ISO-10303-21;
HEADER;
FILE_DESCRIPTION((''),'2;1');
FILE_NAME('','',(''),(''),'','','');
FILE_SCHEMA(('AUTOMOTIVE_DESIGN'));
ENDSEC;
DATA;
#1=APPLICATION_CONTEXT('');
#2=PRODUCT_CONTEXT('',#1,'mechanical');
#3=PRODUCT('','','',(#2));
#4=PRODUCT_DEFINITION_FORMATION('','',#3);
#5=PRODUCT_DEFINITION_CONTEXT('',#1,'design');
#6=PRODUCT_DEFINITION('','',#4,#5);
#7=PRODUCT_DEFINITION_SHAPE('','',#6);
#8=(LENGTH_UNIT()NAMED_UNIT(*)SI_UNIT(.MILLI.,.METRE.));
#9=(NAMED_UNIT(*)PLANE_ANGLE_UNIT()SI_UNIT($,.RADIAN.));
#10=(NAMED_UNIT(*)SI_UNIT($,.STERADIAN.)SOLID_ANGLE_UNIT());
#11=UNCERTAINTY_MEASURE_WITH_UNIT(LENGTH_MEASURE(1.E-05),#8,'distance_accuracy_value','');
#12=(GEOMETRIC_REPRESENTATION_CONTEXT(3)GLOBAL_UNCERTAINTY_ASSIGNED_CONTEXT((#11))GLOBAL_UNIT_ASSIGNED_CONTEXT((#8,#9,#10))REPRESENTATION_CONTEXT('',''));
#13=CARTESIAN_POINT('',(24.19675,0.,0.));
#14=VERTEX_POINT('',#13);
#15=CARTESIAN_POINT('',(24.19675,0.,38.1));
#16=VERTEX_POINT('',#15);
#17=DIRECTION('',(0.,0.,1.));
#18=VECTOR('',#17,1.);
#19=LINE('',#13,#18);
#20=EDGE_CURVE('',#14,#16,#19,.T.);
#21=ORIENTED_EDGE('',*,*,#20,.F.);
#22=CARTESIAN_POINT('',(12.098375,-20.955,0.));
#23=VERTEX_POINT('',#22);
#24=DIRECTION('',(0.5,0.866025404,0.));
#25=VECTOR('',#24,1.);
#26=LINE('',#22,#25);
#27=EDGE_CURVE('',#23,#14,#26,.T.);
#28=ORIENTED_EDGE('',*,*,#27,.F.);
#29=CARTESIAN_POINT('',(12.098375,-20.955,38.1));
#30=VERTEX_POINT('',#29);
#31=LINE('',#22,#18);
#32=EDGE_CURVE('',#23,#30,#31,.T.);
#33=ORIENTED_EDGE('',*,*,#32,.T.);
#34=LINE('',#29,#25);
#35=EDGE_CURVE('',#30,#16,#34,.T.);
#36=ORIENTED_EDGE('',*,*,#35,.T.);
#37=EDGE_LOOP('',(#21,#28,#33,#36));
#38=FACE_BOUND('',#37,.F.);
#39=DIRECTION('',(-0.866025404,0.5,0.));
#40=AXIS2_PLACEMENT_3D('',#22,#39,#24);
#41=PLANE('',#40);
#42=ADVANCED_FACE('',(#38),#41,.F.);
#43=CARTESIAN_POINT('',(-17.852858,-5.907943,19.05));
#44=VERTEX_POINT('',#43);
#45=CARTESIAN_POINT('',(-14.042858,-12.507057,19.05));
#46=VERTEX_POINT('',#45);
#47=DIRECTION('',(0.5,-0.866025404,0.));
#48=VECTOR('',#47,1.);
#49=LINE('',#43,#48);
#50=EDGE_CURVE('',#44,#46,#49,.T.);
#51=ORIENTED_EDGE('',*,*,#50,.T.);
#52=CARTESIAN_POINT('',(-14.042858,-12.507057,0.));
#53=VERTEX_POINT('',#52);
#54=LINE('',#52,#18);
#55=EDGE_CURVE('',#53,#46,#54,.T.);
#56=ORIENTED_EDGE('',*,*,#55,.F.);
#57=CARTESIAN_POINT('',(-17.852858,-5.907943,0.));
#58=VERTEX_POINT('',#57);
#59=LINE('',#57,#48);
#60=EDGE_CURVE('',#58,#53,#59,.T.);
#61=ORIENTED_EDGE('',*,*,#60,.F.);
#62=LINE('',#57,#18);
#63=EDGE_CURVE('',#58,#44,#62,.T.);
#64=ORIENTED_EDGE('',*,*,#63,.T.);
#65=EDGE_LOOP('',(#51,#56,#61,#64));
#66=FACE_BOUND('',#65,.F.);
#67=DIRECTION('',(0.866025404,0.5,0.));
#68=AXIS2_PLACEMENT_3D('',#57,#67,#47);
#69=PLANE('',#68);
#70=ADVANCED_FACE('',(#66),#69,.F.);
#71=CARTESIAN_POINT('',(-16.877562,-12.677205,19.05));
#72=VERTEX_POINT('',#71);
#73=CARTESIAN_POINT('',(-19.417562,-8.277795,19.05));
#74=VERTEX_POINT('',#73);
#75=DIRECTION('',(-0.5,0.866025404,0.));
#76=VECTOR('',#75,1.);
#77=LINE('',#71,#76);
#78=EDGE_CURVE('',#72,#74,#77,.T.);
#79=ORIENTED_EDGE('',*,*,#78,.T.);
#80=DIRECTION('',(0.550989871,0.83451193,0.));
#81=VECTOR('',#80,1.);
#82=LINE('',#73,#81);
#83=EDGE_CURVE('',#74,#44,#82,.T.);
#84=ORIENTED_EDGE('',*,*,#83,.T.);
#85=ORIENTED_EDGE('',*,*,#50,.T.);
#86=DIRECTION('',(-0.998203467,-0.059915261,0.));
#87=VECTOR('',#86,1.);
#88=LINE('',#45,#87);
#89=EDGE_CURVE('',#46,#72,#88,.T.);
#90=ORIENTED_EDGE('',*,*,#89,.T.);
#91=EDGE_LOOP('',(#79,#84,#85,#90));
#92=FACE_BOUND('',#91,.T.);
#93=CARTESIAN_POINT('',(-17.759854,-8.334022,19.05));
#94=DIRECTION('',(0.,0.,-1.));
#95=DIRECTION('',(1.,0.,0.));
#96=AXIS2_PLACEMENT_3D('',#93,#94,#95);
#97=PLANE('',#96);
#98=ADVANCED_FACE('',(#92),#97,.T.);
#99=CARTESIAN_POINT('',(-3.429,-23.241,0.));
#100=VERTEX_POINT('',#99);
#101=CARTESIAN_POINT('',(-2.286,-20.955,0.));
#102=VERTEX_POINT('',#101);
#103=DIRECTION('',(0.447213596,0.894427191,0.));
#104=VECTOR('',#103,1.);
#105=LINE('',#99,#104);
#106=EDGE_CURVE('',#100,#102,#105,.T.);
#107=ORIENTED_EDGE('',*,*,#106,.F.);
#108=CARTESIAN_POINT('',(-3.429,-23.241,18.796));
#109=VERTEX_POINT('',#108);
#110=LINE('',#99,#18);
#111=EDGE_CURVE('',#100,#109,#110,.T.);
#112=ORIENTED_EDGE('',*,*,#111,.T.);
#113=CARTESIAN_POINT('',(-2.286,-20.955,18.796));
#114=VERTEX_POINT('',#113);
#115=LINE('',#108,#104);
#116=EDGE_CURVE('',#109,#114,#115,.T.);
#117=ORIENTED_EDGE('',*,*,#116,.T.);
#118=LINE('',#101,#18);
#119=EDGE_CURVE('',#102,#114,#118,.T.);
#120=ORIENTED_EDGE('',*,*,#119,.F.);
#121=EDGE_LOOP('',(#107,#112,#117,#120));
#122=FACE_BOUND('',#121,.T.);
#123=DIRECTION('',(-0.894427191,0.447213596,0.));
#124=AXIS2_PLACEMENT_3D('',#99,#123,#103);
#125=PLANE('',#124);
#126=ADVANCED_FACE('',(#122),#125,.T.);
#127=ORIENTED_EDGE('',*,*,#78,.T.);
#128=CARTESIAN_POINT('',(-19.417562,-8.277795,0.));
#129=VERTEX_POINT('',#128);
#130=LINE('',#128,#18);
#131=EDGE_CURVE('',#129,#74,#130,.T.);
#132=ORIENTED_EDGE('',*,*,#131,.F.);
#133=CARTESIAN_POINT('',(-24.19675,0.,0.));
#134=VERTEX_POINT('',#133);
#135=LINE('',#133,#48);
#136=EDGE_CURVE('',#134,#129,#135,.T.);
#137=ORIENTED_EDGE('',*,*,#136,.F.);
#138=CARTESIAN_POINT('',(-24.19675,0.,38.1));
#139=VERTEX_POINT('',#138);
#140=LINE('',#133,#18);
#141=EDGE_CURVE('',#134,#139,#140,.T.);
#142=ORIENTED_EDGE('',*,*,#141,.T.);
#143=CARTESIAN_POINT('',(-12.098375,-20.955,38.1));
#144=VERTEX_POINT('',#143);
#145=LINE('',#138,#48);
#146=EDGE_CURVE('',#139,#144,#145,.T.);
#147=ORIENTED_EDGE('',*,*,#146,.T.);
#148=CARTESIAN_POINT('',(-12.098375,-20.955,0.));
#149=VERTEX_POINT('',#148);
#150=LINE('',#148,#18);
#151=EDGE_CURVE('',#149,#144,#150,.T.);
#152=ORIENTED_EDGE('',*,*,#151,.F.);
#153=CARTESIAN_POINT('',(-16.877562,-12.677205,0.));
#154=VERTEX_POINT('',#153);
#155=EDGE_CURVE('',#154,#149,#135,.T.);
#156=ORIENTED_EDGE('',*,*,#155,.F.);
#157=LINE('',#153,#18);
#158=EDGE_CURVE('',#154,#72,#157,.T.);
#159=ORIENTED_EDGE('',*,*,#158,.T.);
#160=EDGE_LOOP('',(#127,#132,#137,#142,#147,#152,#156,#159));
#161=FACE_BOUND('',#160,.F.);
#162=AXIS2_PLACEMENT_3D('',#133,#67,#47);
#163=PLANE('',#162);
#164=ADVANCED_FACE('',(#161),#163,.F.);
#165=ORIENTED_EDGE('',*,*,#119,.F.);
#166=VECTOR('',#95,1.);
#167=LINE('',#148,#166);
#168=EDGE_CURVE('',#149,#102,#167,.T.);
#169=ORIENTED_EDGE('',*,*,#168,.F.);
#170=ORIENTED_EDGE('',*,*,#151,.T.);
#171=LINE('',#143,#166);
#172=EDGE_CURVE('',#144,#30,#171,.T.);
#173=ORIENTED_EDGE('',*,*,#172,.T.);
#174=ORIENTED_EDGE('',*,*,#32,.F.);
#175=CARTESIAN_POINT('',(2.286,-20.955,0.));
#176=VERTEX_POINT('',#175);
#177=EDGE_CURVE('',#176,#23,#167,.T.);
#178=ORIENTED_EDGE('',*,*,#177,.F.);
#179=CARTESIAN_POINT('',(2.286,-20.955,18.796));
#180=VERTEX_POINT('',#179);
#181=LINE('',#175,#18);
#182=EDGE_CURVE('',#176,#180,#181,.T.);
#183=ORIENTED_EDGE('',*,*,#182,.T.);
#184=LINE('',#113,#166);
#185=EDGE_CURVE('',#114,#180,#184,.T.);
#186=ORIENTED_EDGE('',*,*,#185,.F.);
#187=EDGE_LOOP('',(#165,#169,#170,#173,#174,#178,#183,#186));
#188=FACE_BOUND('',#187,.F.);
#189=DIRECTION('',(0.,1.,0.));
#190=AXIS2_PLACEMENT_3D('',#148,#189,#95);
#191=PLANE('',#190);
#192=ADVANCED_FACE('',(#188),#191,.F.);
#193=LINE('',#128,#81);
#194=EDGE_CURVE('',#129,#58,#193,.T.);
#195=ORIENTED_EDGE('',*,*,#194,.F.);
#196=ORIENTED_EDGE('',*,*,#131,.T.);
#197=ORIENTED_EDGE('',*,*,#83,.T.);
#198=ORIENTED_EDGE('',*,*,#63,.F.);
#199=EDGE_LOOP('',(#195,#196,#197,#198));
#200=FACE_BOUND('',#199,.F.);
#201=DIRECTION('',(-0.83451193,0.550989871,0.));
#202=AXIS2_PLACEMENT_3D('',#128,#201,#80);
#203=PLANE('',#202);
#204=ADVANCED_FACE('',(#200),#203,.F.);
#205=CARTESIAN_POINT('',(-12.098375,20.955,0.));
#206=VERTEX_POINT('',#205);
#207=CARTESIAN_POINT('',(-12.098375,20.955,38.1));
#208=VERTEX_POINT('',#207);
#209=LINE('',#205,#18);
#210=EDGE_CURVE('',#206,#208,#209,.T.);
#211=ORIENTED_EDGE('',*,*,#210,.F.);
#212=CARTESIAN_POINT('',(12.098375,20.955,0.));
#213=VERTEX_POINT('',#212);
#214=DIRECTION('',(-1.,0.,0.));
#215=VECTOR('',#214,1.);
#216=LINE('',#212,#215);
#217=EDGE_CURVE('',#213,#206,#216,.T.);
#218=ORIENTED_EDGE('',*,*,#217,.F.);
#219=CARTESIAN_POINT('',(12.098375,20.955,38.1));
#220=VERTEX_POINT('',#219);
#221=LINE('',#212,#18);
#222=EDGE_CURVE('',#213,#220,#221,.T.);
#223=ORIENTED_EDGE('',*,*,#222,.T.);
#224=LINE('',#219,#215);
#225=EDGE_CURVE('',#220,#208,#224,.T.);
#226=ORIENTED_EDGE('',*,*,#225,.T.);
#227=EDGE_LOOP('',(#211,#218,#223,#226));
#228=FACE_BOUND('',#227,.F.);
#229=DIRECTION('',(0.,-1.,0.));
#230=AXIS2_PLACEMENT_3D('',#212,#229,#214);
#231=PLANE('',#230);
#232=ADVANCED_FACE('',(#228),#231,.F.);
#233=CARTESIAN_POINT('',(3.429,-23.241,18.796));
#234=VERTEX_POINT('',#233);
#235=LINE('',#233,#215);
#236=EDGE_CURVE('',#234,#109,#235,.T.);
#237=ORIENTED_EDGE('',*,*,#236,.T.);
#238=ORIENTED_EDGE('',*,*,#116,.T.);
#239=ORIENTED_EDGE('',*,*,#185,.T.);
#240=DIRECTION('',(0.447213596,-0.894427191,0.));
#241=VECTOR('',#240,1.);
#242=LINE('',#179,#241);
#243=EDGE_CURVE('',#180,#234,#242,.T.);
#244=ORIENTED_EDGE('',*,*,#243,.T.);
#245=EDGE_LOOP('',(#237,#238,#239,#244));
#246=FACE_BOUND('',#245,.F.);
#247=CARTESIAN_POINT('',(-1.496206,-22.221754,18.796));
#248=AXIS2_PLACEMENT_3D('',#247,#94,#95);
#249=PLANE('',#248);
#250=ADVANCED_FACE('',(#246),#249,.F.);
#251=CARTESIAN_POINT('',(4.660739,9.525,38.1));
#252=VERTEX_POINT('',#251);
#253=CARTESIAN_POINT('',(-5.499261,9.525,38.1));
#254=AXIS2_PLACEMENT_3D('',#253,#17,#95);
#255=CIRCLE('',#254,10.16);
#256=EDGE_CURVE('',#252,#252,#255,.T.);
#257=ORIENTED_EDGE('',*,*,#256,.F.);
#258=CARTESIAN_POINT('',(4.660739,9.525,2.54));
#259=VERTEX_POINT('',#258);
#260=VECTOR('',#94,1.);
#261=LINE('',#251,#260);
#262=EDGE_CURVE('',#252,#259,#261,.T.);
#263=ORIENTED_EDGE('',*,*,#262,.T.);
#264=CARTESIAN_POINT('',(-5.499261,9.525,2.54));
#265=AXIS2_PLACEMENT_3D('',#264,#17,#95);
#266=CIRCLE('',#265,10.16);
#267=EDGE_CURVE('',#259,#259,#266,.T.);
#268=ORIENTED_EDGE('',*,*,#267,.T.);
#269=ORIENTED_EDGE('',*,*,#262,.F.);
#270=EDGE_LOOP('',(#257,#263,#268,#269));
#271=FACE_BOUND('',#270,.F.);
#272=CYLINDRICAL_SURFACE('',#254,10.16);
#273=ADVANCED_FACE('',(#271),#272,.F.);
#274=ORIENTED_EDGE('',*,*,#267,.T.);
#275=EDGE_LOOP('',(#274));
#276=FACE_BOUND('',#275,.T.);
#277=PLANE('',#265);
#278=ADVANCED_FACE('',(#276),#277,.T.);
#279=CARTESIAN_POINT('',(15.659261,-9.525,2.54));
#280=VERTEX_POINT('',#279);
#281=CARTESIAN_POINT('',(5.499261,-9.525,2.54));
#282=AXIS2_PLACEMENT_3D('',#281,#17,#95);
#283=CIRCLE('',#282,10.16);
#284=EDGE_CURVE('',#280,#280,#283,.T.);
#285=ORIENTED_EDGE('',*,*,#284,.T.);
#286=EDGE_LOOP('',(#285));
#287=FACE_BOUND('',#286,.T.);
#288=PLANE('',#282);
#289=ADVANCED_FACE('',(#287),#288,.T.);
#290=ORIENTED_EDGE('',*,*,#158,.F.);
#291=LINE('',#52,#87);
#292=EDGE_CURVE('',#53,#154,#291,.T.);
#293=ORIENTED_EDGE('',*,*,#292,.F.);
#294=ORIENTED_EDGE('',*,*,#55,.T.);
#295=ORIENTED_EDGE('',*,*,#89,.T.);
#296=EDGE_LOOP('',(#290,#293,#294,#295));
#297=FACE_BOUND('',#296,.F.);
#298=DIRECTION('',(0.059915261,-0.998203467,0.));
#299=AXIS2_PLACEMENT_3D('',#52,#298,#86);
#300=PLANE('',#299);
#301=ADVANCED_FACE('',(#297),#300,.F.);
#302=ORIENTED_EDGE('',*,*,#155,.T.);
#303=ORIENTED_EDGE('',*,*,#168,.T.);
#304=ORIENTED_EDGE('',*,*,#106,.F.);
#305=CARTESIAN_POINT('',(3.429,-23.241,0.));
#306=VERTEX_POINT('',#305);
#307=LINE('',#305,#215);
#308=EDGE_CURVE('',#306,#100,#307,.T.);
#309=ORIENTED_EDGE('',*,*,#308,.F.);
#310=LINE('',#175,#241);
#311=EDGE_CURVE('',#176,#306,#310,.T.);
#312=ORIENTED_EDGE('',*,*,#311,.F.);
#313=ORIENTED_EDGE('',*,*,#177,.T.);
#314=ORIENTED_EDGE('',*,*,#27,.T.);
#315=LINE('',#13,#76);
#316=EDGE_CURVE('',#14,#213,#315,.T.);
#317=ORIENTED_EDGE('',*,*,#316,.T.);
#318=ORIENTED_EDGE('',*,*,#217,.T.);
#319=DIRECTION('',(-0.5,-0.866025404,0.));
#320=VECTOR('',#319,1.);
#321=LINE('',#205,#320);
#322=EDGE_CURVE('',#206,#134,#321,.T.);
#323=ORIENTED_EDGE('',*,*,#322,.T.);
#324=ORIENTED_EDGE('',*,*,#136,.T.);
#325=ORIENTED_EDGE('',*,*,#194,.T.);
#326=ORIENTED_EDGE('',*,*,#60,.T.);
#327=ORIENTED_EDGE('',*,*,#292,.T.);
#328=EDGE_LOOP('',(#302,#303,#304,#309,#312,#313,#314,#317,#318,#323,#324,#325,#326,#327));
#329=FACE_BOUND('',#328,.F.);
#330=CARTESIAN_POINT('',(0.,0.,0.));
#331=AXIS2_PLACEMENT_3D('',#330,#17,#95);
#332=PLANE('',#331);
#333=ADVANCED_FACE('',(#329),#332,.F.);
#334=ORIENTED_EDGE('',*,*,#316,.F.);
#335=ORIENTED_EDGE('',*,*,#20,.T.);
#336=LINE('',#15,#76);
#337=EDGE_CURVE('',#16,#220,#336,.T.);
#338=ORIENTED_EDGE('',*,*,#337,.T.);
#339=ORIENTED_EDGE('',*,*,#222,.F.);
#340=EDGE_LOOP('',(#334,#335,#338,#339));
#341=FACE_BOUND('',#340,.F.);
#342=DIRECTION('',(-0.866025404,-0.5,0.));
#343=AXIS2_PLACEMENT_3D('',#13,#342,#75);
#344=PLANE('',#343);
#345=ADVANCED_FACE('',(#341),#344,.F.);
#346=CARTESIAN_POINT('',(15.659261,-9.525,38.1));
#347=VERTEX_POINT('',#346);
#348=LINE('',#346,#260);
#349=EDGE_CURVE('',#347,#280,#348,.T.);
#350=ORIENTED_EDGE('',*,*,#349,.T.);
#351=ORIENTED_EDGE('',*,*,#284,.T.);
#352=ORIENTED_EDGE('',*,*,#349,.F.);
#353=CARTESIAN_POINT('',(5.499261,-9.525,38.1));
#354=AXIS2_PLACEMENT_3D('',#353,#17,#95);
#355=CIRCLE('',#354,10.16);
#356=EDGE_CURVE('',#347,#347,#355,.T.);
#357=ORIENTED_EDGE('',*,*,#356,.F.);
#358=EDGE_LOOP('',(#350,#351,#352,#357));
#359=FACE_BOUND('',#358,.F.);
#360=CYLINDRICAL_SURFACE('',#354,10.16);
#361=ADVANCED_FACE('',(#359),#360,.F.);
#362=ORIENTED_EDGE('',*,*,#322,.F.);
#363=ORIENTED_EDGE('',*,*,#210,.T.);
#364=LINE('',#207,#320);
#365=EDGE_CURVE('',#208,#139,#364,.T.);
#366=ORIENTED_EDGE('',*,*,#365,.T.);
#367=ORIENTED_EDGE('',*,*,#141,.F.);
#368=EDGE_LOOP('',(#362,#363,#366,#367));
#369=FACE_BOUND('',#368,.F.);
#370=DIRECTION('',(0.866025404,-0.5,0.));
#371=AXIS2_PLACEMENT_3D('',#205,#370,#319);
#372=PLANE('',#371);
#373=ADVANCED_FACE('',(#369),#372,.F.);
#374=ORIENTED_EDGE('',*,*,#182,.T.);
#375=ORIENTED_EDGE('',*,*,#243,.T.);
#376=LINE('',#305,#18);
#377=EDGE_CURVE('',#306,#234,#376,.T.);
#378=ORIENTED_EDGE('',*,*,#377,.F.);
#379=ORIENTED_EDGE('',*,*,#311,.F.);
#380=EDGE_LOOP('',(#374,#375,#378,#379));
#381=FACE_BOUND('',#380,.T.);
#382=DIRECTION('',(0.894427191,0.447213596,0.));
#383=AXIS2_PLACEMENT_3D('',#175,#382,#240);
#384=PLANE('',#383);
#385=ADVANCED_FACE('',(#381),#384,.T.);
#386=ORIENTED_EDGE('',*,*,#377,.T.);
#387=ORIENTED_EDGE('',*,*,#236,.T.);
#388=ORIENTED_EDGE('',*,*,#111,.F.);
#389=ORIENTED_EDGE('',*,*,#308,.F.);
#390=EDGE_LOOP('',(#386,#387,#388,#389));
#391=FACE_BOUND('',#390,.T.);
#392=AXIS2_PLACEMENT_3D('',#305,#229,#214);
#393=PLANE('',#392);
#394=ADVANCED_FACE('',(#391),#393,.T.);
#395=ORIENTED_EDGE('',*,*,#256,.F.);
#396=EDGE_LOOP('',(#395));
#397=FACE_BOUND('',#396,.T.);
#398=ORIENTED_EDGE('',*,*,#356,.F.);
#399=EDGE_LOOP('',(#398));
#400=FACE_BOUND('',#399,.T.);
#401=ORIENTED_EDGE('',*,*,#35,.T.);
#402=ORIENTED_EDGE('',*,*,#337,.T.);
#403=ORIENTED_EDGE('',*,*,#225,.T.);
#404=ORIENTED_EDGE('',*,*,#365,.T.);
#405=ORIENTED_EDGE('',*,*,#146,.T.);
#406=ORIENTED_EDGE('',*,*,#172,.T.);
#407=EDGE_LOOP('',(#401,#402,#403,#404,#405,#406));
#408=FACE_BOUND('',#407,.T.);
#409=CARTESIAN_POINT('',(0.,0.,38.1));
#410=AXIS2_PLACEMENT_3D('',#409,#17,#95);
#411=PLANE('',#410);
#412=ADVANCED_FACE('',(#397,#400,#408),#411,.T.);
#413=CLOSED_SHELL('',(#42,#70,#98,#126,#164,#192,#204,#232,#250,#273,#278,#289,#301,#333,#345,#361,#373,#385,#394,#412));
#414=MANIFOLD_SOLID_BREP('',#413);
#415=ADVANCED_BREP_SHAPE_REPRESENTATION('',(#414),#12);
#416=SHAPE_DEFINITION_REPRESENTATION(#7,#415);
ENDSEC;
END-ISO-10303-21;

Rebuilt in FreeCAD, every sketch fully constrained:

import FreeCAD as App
import Part
import Sketcher

V = App.Vector
Q = App.Units.Quantity


def add_polygon(sketch, points):
    """Adds a closed chain of lines whose ends are joined by coincident constraints."""
    first, n = sketch.GeometryCount, len(points)
    for a, b in zip(points, points[1:] + points[:1]):
        sketch.addGeometry(Part.LineSegment(App.Vector(*a, 0), App.Vector(*b, 0)), False)
    for i in range(n):
        sketch.addConstraint(Sketcher.Constraint("Coincident", first + i, 2, first + (i + 1) % n, 1))

doc = App.newDocument("Part")
params = doc.addObject("Spreadsheet::Sheet", "Params")
for row, (alias, value) in enumerate([
    ("pad1_length", "1.5 in"),
    ("sketch2_diameter", "0.8 in"),
    ("pocket1_length", "1.4 in"),
    ("sketch3_length", "0.3 in"),
    ("sketch3_length2", "0.2 in"),
    ("pocket2_length", "0.75 in"),
    ("sketch4_width", "0.18 in"),
    ("sketch4_width2", "0.27 in"),
    ("pad2_length", "0.74 in"),
], start=1):
    params.set(f"A{row}", alias)
    params.set(f"B{row}", "=" + value)
    params.setAlias(f"B{row}", alias)

body = doc.addObject("PartDesign::Body", "Body")

sketch1 = doc.addObject("Sketcher::SketchObject", "Sketch")
body.addObject(sketch1)
sketch1.AttachmentSupport = (doc.XY_Plane, [""])
sketch1.MapMode = "FlatFace"
add_polygon(sketch1, [(-12.098375, -20.955), (12.098375, -20.955), (24.19675, 0), (12.098375, 20.955), (-12.098375, 20.955), (-24.19675, 0)])
sketch1.addConstraint([
    Sketcher.Constraint("Horizontal", 0),
    Sketcher.Constraint("Horizontal", 3),
    Sketcher.Constraint("Symmetric", 0, 2, 3, 2, -1, 1),
    Sketcher.Constraint("Symmetric", 1, 2, 4, 2, -1, 1),
    Sketcher.Constraint("PointOnObject", 1, 2, -1),
    Sketcher.Constraint("Parallel", 2, 5),
    Sketcher.Constraint("Vertical", 0, 2, 2, 2),
    Sketcher.Constraint("Angle", 1, Q("60 deg")),
    Sketcher.Constraint("DistanceY", 0, 2, 2, 2, Q("1.65 in")),
    Sketcher.Constraint("DistanceX", 0, 1, 0, 2, Q("24.19675 mm")),
])
pad1 = doc.addObject("PartDesign::Pad", "Pad")
body.addObject(pad1)
pad1.Profile = sketch1
pad1.setExpression("Length", "Params.pad1_length")

sketch2 = doc.addObject("Sketcher::SketchObject", "Sketch001")
body.addObject(sketch2)
sketch2.AttachmentSupport = (doc.XY_Plane, [""])
sketch2.MapMode = "FlatFace"
sketch2.AttachmentOffset = App.Placement(V(0, 0, 1.5 * 25.4), App.Rotation())
sketch2.addGeometry([
    Part.Circle(V(-5.499261, 9.525, 0), V(0, 0, 1), 10.16),
    Part.Circle(V(5.499261, -9.525, 0), V(0, 0, 1), 10.16),
], False)
sketch2.addConstraint([
    Sketcher.Constraint("Equal", 0, 1),
    Sketcher.Constraint("Symmetric", 0, 3, 1, 3, -1, 1),
    Sketcher.Constraint("Diameter", 0, Q("0.8 in")),
    Sketcher.Constraint("DistanceY", 1, 3, 0, 3, Q("0.75 in")),
    Sketcher.Constraint("DistanceX", 0, 3, -1, 1, Q("5.499261 mm")),
])
sketch2.setExpression("Constraints[2]", "Params.sketch2_diameter")
pocket1 = doc.addObject("PartDesign::Pocket", "Pocket")
body.addObject(pocket1)
pocket1.Profile = sketch2
pocket1.setExpression("Length", "Params.pocket1_length")

sketch3 = doc.addObject("Sketcher::SketchObject", "Sketch002")
body.addObject(sketch3)
sketch3.AttachmentSupport = (doc.XY_Plane, [""])
sketch3.MapMode = "FlatFace"
add_polygon(sketch3, [(-19.417562, -8.277795), (-17.852858, -5.907943), (-14.042858, -12.507057), (-16.877562, -12.677205)])
sketch3.addConstraint([
    Sketcher.Constraint("Parallel", 1, 3),
    Sketcher.Constraint("Equal", 0, 2),
    Sketcher.Constraint("Angle", 1, Q("-60 deg")),
    Sketcher.Constraint("Distance", 1, Q("0.3 in")),
    Sketcher.Constraint("Distance", 3, Q("0.2 in")),
    Sketcher.Constraint("DistanceY", 2, 2, 0, 2, Q("6.769261 mm")),
    Sketcher.Constraint("DistanceX", 0, 2, -1, 1, Q("17.852858 mm")),
    Sketcher.Constraint("DistanceY", 0, 2, -1, 1, Q("5.907943 mm")),
])
sketch3.setExpression("Constraints[7]", "Params.sketch3_length")
sketch3.setExpression("Constraints[8]", "Params.sketch3_length2")
pocket2 = doc.addObject("PartDesign::Pocket", "Pocket001")
body.addObject(pocket2)
pocket2.Profile = sketch3
pocket2.setExpression("Length", "Params.pocket2_length")
pocket2.Reversed = True

sketch4 = doc.addObject("Sketcher::SketchObject", "Sketch003")
body.addObject(sketch4)
sketch4.AttachmentSupport = (doc.XY_Plane, [""])
sketch4.MapMode = "FlatFace"
add_polygon(sketch4, [(-2.286, -20.955), (2.286, -20.955), (3.429, -23.241), (-3.429, -23.241)])
sketch4.addConstraint([
    Sketcher.Constraint("Horizontal", 0),
    Sketcher.Constraint("Horizontal", 2),
    Sketcher.Constraint("Equal", 1, 3),
    Sketcher.Constraint("DistanceX", 0, 1, 0, 2, Q("0.18 in")),
    Sketcher.Constraint("DistanceX", 2, 2, 2, 1, Q("0.27 in")),
    Sketcher.Constraint("DistanceX", -1, 1, 0, 2, Q("0.09 in")),
    Sketcher.Constraint("DistanceY", 1, 2, 0, 2, Q("0.09 in")),
    Sketcher.Constraint("DistanceY", 0, 2, -1, 1, Q("0.825 in")),
])
sketch4.setExpression("Constraints[7]", "Params.sketch4_width")
sketch4.setExpression("Constraints[8]", "Params.sketch4_width2")
pad2 = doc.addObject("PartDesign::Pad", "Pad001")
body.addObject(pad2)
pad2.Profile = sketch4
pad2.setExpression("Length", "Params.pad2_length")

doc.recompute()
